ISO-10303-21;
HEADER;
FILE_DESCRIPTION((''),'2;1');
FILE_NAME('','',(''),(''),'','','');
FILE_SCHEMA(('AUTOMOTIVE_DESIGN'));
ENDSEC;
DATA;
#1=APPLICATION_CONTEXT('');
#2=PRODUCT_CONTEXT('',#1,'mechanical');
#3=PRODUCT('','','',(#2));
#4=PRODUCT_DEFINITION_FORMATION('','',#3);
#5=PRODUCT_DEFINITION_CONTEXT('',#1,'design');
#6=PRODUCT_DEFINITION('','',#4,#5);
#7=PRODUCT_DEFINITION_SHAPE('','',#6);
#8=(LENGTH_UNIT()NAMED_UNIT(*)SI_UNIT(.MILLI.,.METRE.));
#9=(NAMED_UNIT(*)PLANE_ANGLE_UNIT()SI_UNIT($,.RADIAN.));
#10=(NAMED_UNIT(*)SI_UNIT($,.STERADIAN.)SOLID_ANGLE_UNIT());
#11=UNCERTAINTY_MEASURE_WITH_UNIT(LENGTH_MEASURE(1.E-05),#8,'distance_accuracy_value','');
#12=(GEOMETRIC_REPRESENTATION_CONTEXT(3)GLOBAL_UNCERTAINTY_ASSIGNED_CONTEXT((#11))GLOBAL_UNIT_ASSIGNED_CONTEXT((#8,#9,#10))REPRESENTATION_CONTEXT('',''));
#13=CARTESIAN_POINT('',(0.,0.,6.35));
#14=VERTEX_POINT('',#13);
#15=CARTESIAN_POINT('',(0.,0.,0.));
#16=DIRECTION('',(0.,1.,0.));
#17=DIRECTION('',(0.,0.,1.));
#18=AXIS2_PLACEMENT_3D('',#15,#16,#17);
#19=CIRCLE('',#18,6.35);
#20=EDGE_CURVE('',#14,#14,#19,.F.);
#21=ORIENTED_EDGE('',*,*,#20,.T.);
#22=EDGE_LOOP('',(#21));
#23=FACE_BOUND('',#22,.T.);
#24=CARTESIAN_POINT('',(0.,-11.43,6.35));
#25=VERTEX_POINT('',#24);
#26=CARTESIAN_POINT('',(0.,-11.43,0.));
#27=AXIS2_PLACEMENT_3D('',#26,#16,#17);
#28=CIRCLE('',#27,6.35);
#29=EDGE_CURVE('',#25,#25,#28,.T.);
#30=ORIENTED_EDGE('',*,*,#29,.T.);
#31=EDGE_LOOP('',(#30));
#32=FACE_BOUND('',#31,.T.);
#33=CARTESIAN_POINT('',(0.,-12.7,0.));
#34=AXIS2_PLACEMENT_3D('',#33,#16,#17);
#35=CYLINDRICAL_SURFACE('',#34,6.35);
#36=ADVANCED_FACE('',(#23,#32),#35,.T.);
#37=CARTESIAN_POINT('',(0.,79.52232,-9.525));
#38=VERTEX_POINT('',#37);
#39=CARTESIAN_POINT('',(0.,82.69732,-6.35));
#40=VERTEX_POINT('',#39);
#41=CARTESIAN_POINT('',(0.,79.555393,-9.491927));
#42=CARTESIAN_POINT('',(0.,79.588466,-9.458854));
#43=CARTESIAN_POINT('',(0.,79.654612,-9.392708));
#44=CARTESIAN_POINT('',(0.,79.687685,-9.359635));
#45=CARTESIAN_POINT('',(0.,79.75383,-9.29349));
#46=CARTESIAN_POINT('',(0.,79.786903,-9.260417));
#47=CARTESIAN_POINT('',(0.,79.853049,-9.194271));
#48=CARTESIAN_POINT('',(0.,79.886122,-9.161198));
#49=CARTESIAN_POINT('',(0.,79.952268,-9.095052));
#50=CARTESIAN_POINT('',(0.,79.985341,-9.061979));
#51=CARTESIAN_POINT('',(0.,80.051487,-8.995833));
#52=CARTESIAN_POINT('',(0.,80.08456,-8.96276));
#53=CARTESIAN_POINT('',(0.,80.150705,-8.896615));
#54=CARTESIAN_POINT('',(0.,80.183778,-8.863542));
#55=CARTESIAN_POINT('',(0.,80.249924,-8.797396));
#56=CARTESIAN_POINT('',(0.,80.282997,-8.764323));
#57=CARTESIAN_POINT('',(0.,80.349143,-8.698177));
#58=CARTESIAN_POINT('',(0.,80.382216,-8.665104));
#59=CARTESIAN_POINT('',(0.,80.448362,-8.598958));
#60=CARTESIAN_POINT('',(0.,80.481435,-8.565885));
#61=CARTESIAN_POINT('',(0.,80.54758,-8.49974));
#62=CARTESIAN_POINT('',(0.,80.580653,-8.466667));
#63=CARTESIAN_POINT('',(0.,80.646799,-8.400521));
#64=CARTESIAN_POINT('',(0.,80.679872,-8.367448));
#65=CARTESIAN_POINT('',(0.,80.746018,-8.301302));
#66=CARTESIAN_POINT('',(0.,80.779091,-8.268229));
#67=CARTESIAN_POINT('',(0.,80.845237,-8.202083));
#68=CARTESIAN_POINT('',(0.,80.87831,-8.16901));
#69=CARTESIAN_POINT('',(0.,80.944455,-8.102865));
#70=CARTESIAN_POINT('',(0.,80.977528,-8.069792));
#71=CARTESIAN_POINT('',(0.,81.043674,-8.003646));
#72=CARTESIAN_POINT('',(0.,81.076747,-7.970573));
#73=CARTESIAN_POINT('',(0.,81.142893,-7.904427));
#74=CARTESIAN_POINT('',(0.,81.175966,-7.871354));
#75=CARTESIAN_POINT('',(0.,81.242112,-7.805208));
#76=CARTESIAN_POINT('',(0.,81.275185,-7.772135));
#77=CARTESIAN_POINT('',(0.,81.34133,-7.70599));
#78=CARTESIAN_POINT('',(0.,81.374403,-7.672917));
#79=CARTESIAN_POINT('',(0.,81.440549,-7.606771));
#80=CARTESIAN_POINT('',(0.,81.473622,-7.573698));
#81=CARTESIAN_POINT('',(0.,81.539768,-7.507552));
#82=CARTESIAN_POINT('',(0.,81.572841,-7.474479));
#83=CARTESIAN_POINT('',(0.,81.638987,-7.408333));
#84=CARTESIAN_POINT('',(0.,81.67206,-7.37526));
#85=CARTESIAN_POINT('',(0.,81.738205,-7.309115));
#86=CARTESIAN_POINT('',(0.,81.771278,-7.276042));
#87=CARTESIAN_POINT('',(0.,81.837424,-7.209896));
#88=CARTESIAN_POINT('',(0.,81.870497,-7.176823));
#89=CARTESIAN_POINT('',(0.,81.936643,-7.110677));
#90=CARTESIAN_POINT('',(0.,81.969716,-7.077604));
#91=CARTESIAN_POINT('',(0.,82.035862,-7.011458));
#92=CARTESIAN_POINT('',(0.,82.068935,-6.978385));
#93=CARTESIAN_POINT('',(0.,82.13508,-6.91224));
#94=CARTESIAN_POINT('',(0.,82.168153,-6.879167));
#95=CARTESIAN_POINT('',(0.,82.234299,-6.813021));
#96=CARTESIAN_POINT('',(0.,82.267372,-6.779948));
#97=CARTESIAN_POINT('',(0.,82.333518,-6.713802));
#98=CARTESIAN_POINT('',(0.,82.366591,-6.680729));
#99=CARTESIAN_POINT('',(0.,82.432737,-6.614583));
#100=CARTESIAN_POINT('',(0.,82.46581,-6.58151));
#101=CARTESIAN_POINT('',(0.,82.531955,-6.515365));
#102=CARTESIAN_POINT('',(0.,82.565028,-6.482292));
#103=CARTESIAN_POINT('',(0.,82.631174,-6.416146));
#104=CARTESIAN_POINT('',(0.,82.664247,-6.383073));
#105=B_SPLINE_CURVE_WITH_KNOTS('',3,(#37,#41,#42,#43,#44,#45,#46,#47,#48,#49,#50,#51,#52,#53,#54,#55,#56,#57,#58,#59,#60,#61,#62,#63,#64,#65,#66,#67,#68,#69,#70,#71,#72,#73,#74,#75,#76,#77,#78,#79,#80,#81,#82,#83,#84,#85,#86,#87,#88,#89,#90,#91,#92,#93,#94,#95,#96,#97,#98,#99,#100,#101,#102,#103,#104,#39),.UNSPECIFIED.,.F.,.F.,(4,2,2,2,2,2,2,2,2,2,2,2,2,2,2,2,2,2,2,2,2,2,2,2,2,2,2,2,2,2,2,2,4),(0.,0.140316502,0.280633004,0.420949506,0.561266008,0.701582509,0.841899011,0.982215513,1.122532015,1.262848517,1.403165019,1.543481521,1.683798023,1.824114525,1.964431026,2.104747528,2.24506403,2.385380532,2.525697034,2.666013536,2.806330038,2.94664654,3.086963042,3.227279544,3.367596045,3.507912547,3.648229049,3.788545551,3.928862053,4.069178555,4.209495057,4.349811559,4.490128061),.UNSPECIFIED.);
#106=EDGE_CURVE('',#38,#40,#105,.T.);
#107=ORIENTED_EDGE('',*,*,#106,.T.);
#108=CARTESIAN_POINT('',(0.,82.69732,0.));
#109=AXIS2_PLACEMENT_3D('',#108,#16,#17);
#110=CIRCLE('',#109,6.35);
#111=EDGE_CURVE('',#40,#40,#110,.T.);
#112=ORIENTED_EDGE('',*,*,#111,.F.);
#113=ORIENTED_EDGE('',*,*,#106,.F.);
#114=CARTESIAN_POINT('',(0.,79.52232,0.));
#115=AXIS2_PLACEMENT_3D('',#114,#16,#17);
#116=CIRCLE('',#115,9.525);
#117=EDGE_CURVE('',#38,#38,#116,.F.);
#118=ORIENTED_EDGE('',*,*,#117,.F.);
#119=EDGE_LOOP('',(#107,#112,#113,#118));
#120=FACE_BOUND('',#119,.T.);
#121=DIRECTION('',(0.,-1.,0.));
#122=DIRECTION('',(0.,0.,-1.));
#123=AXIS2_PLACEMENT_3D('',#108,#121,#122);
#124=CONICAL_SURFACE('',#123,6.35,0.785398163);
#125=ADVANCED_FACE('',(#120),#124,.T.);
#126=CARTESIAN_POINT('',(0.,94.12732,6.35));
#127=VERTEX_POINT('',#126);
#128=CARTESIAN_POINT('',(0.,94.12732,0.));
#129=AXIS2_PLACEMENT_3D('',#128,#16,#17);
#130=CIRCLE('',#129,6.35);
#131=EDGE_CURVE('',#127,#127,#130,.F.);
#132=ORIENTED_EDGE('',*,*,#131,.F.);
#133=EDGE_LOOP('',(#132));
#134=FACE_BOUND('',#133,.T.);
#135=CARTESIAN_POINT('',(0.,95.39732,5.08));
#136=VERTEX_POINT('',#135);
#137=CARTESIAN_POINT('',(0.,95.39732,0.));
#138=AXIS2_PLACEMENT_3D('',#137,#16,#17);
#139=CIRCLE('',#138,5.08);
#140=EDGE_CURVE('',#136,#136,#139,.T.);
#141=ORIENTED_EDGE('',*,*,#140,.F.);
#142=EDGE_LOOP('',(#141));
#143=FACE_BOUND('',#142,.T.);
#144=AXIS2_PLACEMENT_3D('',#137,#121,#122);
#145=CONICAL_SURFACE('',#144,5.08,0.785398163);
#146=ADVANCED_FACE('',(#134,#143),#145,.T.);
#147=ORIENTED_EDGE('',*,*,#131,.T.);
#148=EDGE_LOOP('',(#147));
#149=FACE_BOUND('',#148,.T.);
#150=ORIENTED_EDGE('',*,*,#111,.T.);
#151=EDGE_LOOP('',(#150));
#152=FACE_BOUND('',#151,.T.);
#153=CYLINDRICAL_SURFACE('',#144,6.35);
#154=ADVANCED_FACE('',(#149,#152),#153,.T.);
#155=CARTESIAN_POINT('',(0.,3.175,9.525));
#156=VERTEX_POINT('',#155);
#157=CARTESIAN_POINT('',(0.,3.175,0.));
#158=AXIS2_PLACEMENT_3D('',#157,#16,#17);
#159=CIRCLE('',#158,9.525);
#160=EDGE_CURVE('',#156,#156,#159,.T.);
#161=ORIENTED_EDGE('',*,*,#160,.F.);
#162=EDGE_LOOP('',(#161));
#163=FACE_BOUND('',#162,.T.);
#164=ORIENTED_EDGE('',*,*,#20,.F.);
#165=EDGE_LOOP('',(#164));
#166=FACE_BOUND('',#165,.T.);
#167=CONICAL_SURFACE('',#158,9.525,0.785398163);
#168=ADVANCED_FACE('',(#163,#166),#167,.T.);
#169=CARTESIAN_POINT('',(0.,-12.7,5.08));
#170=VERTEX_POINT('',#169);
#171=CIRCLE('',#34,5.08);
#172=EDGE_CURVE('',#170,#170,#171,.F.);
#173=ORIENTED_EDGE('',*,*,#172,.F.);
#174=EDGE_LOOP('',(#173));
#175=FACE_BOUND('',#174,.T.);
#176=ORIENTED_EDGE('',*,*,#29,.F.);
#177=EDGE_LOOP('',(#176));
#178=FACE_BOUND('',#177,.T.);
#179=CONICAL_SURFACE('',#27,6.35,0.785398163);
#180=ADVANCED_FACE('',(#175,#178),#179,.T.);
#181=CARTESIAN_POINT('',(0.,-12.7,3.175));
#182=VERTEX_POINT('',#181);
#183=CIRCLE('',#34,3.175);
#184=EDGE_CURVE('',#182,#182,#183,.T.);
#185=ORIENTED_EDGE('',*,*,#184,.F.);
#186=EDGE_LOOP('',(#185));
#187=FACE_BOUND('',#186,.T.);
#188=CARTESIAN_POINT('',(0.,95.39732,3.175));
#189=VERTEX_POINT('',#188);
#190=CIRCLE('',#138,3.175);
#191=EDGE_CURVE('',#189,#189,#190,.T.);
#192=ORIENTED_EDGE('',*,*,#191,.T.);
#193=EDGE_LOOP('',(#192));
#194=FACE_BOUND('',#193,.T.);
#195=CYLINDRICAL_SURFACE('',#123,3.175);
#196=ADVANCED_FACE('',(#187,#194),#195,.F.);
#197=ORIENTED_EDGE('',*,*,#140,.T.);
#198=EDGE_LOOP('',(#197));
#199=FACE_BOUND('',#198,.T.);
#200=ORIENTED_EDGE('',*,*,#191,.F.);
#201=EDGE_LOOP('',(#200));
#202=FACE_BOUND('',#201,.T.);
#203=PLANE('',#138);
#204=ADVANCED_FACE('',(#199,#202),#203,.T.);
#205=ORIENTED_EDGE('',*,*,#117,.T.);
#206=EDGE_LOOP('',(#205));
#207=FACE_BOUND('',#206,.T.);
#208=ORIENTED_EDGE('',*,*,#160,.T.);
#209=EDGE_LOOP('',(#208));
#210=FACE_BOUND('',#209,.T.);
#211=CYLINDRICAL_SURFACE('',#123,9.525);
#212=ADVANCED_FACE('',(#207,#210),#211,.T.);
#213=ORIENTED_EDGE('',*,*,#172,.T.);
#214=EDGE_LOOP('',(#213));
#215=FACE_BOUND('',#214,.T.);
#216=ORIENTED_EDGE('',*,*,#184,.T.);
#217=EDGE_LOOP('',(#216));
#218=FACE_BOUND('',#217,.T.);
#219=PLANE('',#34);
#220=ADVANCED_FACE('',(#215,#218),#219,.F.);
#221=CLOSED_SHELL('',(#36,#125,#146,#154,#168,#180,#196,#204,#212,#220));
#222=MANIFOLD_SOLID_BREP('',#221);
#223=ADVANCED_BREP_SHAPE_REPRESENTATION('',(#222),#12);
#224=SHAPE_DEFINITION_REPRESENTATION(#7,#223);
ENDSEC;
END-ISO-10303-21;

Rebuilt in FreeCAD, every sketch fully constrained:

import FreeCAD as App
import Part
import Sketcher
from FreeCAD import Vector
Q = App.Units.Quantity


def edges_at(feature, points):
    """Names of the edges that pass closest to the given points."""
    edges = feature.Shape.Edges
    near = lambda p: min(range(len(edges)), key=lambda i: edges[i].distToShape(Part.Vertex(*p))[0])
    return sorted({f"Edge{near(p) + 1}" for p in points})

doc = App.newDocument("Part")
body = doc.addObject("PartDesign::Body", "Body")

sketch1 = body.newObject("Sketcher::SketchObject", "Sketch")
sketch1.AttachmentSupport = (doc.getObject("XZ_Plane"), [""])
sketch1.MapMode = "FlatFace"
sketch1.addGeometry(Part.Circle(Vector(0, 0, 0), Vector(0, 0, 1), 9.5), False)
sketch1.addGeometry(Part.Circle(Vector(0, 0, 0), Vector(0, 0, 1), 3.2), False)
sketch1.addConstraint(Sketcher.Constraint("Coincident", 0, 3, -1, 1))
sketch1.addConstraint(Sketcher.Constraint("Coincident", 1, 3, -1, 1))
sketch1.addConstraint(Sketcher.Constraint("Diameter", 0, Q("0.75 in")))
sketch1.addConstraint(Sketcher.Constraint("Diameter", 1, Q("0.25 in")))
pad1 = body.newObject("PartDesign::Pad", "Pad")
pad1.Profile = sketch1
pad1.Length = Q("3.2558 in")
pad1.Reversed = True
doc.recompute()

chamfer = body.newObject("PartDesign::Chamfer", "Chamfer")
chamfer.Base = (pad1, edges_at(pad1, [(0, 0, -9.525), (0, 82.697, -9.525)]))
chamfer.Size = Q("0.125 in")

sketch2 = body.newObject("Sketcher::SketchObject", "Sketch001")
sketch2.AttachmentSupport = (doc.getObject("XZ_Plane"), [""])
sketch2.MapMode = "FlatFace"
sketch2.AttachmentOffset = App.Placement(Vector(0, 0, 0.5 * 25.4), App.Rotation())
sketch2.addGeometry(Part.Circle(Vector(0, 0, 0), Vector(0, 0, 1), 6.3), False)
sketch2.addGeometry(Part.Circle(Vector(0, 0, 0), Vector(0, 0, 1), 3.2), False)
sketch2.addConstraint(Sketcher.Constraint("Coincident", 0, 3, -1, 1))
sketch2.addConstraint(Sketcher.Constraint("Coincident", 1, 3, -1, 1))
sketch2.addConstraint(Sketcher.Constraint("Diameter", 0, Q("0.5 in")))
sketch2.addConstraint(Sketcher.Constraint("Diameter", 1, Q("0.25 in")))
pad2 = body.newObject("PartDesign::Pad", "Pad001")
pad2.Profile = sketch2
pad2.Length = Q("0.5 in")
pad2.Reversed = True

sketch3 = body.newObject("Sketcher::SketchObject", "Sketch002")
sketch3.AttachmentSupport = (doc.getObject("XZ_Plane"), [""])
sketch3.MapMode = "FlatFace"
sketch3.AttachmentOffset = App.Placement(Vector(0, 0, -3.2558 * 25.4), App.Rotation())
sketch3.addGeometry(Part.Circle(Vector(0, 0, 0), Vector(0, 0, 1), 6.3), False)
sketch3.addGeometry(Part.Circle(Vector(0, 0, 0), Vector(0, 0, 1), 3.2), False)
sketch3.addConstraint(Sketcher.Constraint("Coincident", 0, 3, -1, 1))
sketch3.addConstraint(Sketcher.Constraint("Coincident", 1, 3, -1, 1))
sketch3.addConstraint(Sketcher.Constraint("Diameter", 0, Q("0.5 in")))
sketch3.addConstraint(Sketcher.Constraint("Diameter", 1, Q("0.25 in")))
pad3 = body.newObject("PartDesign::Pad", "Pad002")
pad3.Profile = sketch3
pad3.Length = Q("0.5 in")
pad3.Reversed = True
doc.recompute()

chamfer2 = body.newObject("PartDesign::Chamfer", "Chamfer001")
chamfer2.Base = (pad3, edges_at(pad3, [(0, -12.7, -6.35), (0, 95.397, -6.35)]))
chamfer2.Size = Q("0.05 in")

doc.recompute()
